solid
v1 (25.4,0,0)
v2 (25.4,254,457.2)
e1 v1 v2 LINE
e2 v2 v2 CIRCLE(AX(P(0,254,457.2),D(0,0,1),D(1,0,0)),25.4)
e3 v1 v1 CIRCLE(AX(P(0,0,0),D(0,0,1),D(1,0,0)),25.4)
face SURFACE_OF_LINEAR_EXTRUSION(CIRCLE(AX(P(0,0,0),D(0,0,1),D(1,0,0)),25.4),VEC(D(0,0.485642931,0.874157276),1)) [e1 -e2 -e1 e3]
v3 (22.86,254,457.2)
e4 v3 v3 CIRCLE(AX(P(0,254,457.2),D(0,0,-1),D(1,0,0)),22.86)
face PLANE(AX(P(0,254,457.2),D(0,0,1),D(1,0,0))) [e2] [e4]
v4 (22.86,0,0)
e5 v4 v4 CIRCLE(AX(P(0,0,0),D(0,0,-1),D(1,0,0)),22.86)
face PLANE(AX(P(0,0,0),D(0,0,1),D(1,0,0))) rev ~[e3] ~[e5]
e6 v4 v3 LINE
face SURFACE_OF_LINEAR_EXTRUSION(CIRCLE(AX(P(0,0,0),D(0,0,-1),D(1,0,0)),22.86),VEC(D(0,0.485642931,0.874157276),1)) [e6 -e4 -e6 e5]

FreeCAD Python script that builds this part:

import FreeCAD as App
import Part
import Sketcher

V = App.Vector
Q = App.Units.Quantity

doc = App.newDocument("Part")
body = doc.addObject("PartDesign::Body", "Body")

sketch1 = body.newObject("Sketcher::SketchObject", "Sketch")
sketch1.AttachmentSupport = (doc.getObject("XY_Plane"), [""])
sketch1.MapMode = "FlatFace"
sketch1.addGeometry(Part.Circle(V(0, 0, 0), V(0, 0, 1), 25), False)
sketch1.addGeometry(Part.Circle(V(0, 0, 0), V(0, 0, 1), 23), False)
sketch1.addConstraint(Sketcher.Constraint("Coincident", 0, 3, -1, 1))
sketch1.addConstraint(Sketcher.Constraint("Coincident", 1, 3, -1, 1))
sketch1.addConstraint(Sketcher.Constraint("Diameter", 0, Q("2 in")))
sketch1.addConstraint(Sketcher.Constraint("Diameter", 1, Q("1.8 in")))

sketch2 = body.newObject("Sketcher::SketchObject", "Sketch001")
sketch2.Placement = App.Placement(V(0, 0, 0), App.Rotation(V(0, 0.485642931, 0.874157276), V(1, 0, 0), V(0, 0.874157276, -0.485642931), "ZXY"))
sketch2.addGeometry(Part.LineSegment(V(0, 0, 0), V(523, 0, 0)), False)
sketch2.addConstraint(Sketcher.Constraint("Horizontal", 0))
sketch2.addConstraint(Sketcher.Constraint("Coincident", 0, 1, -1, 1))
sketch2.addConstraint(Sketcher.Constraint("DistanceX", 0, 1, 0, 2, Q("523.018011 mm")))
doc.recompute()

additivepipe = body.newObject("PartDesign::AdditivePipe", "AdditivePipe")
additivepipe.Profile = sketch1
additivepipe.Spine = (sketch2, ["Edge1"])

doc.recompute()
